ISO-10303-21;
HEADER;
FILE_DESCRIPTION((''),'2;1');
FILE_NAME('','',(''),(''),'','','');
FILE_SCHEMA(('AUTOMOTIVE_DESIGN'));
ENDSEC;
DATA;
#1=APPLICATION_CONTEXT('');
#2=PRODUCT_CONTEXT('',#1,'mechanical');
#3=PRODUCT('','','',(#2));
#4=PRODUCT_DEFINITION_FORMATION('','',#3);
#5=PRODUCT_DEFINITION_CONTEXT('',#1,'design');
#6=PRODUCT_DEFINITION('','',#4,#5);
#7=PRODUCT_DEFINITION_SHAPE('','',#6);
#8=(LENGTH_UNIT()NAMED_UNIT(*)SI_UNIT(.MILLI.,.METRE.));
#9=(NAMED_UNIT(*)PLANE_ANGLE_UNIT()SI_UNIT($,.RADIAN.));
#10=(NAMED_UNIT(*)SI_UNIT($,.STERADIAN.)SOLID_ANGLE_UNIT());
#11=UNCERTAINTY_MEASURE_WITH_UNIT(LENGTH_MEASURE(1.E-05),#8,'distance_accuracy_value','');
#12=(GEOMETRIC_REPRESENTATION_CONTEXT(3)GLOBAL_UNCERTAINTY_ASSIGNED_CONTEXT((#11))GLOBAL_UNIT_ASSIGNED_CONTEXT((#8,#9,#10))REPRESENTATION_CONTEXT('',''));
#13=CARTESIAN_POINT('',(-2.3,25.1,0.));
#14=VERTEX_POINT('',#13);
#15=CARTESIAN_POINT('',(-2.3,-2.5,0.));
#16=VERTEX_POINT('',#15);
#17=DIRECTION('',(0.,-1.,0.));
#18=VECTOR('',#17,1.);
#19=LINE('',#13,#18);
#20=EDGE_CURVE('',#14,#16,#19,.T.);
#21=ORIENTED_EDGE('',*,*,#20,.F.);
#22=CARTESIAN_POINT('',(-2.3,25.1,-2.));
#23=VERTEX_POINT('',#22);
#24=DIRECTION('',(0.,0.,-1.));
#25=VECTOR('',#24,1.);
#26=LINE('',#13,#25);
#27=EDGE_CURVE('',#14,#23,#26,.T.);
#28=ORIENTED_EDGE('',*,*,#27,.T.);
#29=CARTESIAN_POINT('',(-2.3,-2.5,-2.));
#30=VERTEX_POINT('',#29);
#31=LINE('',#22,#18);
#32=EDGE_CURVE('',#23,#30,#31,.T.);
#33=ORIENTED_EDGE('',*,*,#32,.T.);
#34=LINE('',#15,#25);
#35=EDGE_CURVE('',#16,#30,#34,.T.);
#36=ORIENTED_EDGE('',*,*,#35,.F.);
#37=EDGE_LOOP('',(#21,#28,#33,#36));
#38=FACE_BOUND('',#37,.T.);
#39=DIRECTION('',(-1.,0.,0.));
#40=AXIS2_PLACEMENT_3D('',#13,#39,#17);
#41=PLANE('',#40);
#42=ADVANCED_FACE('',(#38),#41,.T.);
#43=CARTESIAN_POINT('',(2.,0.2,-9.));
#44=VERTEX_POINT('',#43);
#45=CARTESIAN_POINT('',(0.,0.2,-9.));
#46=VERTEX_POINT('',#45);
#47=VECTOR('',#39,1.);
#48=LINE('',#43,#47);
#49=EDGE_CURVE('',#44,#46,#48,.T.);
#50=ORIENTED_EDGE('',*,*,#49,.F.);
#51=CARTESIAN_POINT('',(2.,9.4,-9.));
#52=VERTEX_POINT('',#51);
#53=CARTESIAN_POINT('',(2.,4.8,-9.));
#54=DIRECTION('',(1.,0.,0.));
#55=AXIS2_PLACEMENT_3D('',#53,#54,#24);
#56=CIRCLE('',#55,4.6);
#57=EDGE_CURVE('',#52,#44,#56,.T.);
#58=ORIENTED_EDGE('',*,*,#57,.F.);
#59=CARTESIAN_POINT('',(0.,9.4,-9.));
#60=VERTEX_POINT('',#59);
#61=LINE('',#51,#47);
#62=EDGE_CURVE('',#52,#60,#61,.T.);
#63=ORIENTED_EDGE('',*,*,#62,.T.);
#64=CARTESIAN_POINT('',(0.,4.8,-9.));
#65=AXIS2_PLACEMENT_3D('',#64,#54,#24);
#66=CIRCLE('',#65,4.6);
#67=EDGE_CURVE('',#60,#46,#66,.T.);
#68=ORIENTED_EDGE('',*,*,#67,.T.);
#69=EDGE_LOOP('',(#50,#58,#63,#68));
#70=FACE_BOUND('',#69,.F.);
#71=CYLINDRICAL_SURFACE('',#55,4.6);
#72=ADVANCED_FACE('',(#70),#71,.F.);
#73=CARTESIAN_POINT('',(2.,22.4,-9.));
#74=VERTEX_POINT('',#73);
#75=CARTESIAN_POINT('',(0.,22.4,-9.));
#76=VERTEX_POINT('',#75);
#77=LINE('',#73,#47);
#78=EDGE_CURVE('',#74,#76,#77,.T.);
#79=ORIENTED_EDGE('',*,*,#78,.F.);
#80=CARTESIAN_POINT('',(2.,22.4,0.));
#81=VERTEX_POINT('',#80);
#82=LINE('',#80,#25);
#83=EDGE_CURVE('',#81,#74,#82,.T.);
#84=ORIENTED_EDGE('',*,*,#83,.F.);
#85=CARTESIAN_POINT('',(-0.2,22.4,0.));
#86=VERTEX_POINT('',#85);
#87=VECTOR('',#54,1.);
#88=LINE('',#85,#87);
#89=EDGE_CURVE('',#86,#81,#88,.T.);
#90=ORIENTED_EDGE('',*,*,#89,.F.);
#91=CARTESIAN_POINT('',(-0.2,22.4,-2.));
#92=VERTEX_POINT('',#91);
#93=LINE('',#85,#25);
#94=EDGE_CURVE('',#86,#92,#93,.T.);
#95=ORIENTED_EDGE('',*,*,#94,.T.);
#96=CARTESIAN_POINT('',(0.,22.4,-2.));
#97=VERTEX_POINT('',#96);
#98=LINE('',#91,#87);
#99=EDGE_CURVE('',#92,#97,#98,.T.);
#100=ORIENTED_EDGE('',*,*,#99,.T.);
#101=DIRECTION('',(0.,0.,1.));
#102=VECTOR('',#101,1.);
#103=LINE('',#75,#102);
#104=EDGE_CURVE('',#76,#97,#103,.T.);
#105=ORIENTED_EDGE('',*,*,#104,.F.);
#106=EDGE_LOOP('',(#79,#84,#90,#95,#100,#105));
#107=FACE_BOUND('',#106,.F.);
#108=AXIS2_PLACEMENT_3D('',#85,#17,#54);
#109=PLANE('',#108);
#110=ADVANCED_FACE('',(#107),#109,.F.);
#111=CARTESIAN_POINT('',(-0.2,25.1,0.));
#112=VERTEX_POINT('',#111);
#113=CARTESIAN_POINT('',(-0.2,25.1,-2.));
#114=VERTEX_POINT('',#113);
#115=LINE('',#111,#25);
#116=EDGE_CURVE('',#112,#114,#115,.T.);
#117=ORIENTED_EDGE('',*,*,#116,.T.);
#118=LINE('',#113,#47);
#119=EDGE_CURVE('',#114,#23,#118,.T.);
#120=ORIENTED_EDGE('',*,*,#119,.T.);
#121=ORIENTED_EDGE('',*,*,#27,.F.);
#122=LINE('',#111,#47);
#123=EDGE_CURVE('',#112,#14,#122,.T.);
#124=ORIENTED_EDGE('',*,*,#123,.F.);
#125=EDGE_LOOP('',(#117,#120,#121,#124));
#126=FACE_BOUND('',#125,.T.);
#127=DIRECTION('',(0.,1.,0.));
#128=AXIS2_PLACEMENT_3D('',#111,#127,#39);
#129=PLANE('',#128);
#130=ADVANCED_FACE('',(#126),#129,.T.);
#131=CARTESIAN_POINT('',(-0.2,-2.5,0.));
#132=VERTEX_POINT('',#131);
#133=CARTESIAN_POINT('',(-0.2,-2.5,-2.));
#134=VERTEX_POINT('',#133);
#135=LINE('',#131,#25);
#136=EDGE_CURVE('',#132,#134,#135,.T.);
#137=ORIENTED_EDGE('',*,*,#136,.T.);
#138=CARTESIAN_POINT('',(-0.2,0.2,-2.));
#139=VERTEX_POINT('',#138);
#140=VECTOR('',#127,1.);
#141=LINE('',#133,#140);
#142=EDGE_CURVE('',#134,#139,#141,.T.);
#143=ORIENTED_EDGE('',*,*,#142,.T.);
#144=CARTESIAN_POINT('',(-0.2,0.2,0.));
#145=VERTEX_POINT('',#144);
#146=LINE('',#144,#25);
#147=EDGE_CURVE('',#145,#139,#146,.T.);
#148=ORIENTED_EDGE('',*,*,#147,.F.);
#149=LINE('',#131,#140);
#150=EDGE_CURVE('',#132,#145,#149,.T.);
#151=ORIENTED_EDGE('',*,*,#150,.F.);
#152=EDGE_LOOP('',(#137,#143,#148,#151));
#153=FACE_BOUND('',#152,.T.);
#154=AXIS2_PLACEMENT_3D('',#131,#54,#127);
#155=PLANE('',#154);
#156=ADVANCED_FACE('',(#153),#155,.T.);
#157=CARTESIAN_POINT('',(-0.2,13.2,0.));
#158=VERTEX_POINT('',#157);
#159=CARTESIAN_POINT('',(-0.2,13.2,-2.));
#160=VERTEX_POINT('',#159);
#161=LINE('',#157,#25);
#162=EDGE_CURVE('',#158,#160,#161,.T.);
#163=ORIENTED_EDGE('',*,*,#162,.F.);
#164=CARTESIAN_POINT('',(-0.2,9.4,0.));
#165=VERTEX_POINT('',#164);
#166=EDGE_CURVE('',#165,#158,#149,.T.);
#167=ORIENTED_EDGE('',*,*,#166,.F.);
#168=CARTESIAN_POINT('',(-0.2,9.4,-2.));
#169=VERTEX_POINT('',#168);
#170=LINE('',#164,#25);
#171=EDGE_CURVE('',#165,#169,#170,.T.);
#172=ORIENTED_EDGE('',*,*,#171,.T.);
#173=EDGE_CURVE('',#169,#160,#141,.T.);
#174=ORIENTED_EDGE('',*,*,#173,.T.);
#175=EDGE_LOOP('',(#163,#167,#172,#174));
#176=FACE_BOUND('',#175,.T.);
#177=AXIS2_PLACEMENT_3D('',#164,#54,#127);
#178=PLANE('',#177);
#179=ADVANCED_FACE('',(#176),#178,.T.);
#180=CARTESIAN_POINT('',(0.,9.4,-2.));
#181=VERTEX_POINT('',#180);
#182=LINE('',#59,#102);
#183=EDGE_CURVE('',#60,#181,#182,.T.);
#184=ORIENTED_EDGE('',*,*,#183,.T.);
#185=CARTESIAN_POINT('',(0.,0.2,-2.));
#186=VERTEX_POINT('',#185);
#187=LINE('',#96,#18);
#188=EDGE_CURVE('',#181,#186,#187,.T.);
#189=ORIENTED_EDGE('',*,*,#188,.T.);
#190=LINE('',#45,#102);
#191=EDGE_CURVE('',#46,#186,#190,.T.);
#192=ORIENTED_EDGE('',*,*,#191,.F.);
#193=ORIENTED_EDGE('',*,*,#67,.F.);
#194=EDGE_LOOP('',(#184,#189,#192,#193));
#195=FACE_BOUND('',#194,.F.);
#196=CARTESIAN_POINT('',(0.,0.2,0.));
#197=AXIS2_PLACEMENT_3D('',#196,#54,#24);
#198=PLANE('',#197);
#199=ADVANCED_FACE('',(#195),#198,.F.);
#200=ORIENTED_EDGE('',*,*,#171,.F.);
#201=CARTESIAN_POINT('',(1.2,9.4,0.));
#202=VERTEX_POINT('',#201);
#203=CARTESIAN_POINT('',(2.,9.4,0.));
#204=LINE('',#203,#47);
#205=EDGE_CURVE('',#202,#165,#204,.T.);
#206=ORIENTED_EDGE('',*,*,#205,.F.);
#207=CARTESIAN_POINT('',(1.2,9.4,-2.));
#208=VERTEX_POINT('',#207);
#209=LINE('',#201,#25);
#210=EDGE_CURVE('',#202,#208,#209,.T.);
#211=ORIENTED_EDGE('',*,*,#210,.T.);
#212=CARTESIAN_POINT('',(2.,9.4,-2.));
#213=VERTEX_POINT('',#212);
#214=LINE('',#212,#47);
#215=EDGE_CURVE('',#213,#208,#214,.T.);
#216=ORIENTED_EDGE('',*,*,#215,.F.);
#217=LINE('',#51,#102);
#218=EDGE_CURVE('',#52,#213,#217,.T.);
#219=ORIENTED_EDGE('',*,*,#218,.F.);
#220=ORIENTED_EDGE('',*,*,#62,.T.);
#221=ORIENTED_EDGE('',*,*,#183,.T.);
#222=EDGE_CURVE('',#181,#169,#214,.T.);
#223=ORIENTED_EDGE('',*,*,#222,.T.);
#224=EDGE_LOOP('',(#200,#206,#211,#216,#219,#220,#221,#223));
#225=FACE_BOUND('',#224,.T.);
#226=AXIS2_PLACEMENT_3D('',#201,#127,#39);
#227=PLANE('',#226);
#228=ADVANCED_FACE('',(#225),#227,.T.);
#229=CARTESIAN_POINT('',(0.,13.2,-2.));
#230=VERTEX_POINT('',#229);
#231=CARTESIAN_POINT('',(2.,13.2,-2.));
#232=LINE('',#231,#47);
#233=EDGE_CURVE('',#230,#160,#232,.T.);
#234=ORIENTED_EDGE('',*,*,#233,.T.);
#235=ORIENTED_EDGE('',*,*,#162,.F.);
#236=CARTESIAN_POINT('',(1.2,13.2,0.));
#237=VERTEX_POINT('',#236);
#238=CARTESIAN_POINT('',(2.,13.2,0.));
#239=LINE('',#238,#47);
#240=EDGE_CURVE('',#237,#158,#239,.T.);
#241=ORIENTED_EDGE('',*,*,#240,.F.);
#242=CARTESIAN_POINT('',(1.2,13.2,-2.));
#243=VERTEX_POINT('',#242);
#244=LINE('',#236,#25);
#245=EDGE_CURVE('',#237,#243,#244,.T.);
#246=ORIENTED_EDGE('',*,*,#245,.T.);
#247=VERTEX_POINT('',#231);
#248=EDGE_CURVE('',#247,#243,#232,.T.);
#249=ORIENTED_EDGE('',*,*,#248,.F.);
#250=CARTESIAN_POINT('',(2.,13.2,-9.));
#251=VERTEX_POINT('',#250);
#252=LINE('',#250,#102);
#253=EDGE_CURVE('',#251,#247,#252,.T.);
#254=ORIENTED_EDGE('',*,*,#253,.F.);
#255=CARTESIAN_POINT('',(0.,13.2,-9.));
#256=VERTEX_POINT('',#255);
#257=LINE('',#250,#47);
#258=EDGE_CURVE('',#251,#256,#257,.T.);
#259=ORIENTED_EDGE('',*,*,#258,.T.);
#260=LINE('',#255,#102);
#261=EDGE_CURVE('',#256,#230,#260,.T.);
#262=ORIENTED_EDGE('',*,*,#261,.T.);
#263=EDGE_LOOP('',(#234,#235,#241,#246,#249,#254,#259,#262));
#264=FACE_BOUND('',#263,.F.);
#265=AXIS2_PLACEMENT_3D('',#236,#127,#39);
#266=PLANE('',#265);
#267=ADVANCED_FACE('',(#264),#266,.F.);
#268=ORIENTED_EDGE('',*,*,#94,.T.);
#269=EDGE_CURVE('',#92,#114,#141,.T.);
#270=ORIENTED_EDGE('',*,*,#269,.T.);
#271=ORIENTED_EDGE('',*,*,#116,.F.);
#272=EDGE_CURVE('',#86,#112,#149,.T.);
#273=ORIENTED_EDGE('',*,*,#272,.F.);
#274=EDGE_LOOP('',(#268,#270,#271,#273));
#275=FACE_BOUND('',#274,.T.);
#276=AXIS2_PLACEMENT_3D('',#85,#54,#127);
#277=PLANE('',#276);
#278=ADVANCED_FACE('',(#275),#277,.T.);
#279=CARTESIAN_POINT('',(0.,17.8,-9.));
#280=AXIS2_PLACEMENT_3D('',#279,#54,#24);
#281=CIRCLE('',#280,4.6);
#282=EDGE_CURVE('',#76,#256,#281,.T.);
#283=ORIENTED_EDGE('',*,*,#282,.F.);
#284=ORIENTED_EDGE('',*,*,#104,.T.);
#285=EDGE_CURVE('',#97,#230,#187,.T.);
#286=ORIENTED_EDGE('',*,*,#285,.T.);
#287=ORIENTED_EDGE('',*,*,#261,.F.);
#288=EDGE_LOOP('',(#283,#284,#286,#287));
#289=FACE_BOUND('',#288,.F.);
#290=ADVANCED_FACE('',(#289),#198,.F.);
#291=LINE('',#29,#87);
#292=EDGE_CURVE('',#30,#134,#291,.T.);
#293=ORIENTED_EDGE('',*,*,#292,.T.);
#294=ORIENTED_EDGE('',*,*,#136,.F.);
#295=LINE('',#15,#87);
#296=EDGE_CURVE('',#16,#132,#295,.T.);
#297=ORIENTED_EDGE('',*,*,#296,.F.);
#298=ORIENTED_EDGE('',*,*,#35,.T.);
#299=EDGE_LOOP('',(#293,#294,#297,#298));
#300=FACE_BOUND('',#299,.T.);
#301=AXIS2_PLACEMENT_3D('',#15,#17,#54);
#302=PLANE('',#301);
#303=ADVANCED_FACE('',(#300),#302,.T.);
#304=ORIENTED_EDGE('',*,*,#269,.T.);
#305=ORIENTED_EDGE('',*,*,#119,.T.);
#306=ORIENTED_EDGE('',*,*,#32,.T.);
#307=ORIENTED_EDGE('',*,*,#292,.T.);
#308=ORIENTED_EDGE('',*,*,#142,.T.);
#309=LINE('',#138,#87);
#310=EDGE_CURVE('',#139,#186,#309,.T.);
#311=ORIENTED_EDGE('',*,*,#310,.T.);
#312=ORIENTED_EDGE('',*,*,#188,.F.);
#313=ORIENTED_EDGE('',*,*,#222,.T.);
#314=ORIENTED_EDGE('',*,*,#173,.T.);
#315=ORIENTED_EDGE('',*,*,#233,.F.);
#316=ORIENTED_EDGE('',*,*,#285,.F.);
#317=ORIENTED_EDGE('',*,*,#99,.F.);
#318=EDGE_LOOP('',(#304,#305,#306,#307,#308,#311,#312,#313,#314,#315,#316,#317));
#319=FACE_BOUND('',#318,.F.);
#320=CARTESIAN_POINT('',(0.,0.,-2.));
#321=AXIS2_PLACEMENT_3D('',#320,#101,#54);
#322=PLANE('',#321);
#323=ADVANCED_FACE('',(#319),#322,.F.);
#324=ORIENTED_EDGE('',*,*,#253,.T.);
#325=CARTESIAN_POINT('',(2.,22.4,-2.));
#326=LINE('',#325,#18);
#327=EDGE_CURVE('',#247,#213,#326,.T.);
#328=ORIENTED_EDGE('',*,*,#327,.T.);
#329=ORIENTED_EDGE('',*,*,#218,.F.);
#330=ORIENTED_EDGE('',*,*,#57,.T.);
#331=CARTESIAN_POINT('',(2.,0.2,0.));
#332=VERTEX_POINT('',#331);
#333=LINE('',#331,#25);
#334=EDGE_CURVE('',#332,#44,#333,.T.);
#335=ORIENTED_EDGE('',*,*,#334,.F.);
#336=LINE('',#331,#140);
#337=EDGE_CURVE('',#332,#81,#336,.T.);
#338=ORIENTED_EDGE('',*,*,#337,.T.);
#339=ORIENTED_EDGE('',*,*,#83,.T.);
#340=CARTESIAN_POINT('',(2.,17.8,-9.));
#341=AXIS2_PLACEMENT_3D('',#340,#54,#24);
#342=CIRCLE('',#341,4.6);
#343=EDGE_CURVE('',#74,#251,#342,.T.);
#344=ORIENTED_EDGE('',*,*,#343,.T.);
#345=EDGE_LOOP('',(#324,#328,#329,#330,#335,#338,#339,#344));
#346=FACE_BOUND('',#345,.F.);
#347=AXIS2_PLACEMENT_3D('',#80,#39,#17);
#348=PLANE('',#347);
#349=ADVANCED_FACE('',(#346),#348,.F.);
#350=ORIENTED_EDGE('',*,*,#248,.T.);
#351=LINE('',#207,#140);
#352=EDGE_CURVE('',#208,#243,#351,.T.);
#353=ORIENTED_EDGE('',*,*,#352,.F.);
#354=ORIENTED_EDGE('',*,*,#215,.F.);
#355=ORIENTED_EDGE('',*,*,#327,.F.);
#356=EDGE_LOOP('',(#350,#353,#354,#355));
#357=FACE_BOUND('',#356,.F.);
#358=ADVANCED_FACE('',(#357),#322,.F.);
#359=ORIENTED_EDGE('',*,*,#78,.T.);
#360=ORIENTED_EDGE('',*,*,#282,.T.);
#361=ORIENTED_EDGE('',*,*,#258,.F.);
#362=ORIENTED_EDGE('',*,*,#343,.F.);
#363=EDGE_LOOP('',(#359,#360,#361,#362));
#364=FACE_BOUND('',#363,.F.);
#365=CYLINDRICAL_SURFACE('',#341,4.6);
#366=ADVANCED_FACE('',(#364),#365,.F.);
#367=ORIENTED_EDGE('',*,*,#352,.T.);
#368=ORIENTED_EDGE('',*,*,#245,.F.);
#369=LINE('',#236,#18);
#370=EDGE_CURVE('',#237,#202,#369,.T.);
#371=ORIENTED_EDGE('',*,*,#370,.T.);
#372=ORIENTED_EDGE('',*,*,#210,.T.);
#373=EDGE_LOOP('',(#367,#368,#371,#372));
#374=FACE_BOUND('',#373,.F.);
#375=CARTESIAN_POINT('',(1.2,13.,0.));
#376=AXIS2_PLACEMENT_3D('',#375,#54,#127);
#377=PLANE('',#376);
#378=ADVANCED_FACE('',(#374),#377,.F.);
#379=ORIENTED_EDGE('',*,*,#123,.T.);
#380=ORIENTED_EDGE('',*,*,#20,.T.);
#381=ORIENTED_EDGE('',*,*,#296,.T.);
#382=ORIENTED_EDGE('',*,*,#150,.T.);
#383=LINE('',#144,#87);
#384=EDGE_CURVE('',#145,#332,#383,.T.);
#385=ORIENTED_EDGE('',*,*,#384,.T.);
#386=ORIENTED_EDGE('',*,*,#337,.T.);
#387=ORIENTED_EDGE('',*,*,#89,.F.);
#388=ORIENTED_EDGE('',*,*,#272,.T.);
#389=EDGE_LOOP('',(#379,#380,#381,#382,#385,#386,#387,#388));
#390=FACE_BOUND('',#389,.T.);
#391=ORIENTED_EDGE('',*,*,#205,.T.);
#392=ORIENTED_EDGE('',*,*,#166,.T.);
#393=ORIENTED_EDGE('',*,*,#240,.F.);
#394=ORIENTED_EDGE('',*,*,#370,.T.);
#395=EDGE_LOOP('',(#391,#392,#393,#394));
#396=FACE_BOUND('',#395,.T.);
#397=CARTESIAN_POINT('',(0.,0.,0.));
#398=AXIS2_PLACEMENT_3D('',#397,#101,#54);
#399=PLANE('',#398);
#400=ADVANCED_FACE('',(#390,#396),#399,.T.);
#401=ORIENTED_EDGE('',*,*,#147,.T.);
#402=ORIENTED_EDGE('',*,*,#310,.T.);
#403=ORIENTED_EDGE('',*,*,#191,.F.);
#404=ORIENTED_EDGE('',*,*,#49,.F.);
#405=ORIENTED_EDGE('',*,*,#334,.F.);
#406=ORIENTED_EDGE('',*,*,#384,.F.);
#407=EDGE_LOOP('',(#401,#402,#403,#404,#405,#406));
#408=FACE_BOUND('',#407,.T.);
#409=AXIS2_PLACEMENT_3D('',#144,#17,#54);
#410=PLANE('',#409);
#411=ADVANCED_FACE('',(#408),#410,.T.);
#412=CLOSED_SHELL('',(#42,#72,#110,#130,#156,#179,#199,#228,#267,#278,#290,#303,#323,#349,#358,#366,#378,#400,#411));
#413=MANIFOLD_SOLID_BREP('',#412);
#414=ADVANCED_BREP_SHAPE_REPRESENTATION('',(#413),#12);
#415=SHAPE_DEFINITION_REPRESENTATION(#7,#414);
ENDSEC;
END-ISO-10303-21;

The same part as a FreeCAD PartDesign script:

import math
import FreeCAD as App
import Part
import Sketcher


def add_polygon(sketch, points):
    """Adds a closed chain of lines whose ends are joined by coincident constraints."""
    first, n = sketch.GeometryCount, len(points)
    for a, b in zip(points, points[1:] + points[:1]):
        sketch.addGeometry(Part.LineSegment(App.Vector(*a, 0), App.Vector(*b, 0)), False)
    for i in range(n):
        sketch.addConstraint(Sketcher.Constraint("Coincident", first + i, 2, first + (i + 1) % n, 1))

doc = App.newDocument("Part")
body = doc.addObject("PartDesign::Body", "Body")

# Sketch on XY plane
sketch1 = body.newObject("Sketcher::SketchObject", "Sketch")
sketch1.AttachmentSupport = (doc.getObject("XY_Plane"), [""])
sketch1.MapMode = "FlatFace"
add_polygon(sketch1, [(-0.2, 22.4), (-0.2, 25.1), (-2.3, 25.1), (-2.3, -2.5), (-0.2, -2.5), (-0.2, 0.2), (2, 0.2), (2, 22.4)])  # lines 0-7
add_polygon(sketch1, [(-0.2, 9.4), (-0.2, 13.2), (1.2, 13.2), (1.2, 9.4)])  # lines 8-11
sketch1.addConstraint(Sketcher.Constraint("Vertical", 0))
sketch1.addConstraint(Sketcher.Constraint("Horizontal", 1))
sketch1.addConstraint(Sketcher.Constraint("Vertical", 2))
sketch1.addConstraint(Sketcher.Constraint("Horizontal", 3))
sketch1.addConstraint(Sketcher.Constraint("Vertical", 4))
sketch1.addConstraint(Sketcher.Constraint("Horizontal", 5))
sketch1.addConstraint(Sketcher.Constraint("Vertical", 6))
sketch1.addConstraint(Sketcher.Constraint("Horizontal", 7))
sketch1.addConstraint(Sketcher.Constraint("Vertical", 8))
sketch1.addConstraint(Sketcher.Constraint("Horizontal", 9))
sketch1.addConstraint(Sketcher.Constraint("Vertical", 10))
sketch1.addConstraint(Sketcher.Constraint("Horizontal", 11))
sketch1.addConstraint(Sketcher.Constraint("Vertical", 0, 2, 3, 2))
sketch1.addConstraint(Sketcher.Constraint("Vertical", 7, 2, 8, 2))
sketch1.addConstraint(Sketcher.Constraint("Equal", 0, 4))
sketch1.addConstraint(Sketcher.Constraint("DistanceX", 1, 2, 1, 1, 2.1))
sketch1.addConstraint(Sketcher.Constraint("DistanceY", 2, 2, 2, 1, 27.6))
sketch1.addConstraint(Sketcher.Constraint("DistanceX", 0, 2, -1, 1, 0.2))
sketch1.addConstraint(Sketcher.Constraint("DistanceY", -1, 1, 4, 2, 0.2))
sketch1.addConstraint(Sketcher.Constraint("DistanceY", 8, 2, 7, 2, 9.2))
sketch1.addConstraint(Sketcher.Constraint("DistanceY", 5, 2, 10, 2, 9.2))
sketch1.addConstraint(Sketcher.Constraint("DistanceX", 5, 1, 5, 2, 2.2))
sketch1.addConstraint(Sketcher.Constraint("DistanceX", 9, 1, 9, 2, 1.4))
sketch1.addConstraint(Sketcher.Constraint("DistanceY", 0, 1, 0, 2, 2.7))
pad1 = body.newObject("PartDesign::Pad", "Pad")
pad1.Profile = sketch1
pad1.Length = 2
pad1.Reversed = True

# Sketch on YZ plane
sketch2 = body.newObject("Sketcher::SketchObject", "Sketch001")
sketch2.AttachmentSupport = (doc.getObject("YZ_Plane"), [""])
sketch2.MapMode = "FlatFace"
sketch2.AttachmentOffset = App.Placement(App.Vector(0, 0, 2), App.Rotation())
sketch2.addGeometry(Part.LineSegment(App.Vector(22.4, -2, 0), App.Vector(13.2, -2, 0)), False)
sketch2.addGeometry(Part.LineSegment(App.Vector(13.2, -2, 0), App.Vector(13.2, -9, 0)), False)
sketch2.addGeometry(Part.ArcOfCircle(Part.Circle(App.Vector(17.8, -9, 0), App.Vector(0, 0, 1), 4.6), math.radians(0), math.radians(180)), False)
sketch2.addGeometry(Part.LineSegment(App.Vector(22.4, -9, 0), App.Vector(22.4, -2, 0)), False)
sketch2.addGeometry(Part.ArcOfCircle(Part.Circle(App.Vector(4.8, -9, 0), App.Vector(0, 0, 1), 4.6), math.radians(0), math.radians(180)), False)
sketch2.addGeometry(Part.LineSegment(App.Vector(9.4, -9, 0), App.Vector(9.4, -2, 0)), False)
sketch2.addGeometry(Part.LineSegment(App.Vector(9.4, -2, 0), App.Vector(0.2, -2, 0)), False)
sketch2.addGeometry(Part.LineSegment(App.Vector(0.2, -2, 0), App.Vector(0.2, -9, 0)), False)
sketch2.addConstraint(Sketcher.Constraint("Coincident", 0, 2, 1, 1))
sketch2.addConstraint(Sketcher.Constraint("Tangent", 1, 2, 2, 2))
sketch2.addConstraint(Sketcher.Constraint("Tangent", 2, 1, 3, 1))
sketch2.addConstraint(Sketcher.Constraint("Coincident", 3, 2, 0, 1))
sketch2.addConstraint(Sketcher.Constraint("Tangent", 4, 1, 5, 1))
sketch2.addConstraint(Sketcher.Constraint("Coincident", 5, 2, 6, 1))
sketch2.addConstraint(Sketcher.Constraint("Coincident", 6, 2, 7, 1))
sketch2.addConstraint(Sketcher.Constraint("Tangent", 7, 2, 4, 2))
sketch2.addConstraint(Sketcher.Constraint("Horizontal", 0))
sketch2.addConstraint(Sketcher.Constraint("Vertical", 1))
sketch2.addConstraint(Sketcher.Constraint("Vertical", 3))
sketch2.addConstraint(Sketcher.Constraint("Vertical", 5))
sketch2.addConstraint(Sketcher.Constraint("Horizontal", 6))
sketch2.addConstraint(Sketcher.Constraint("Vertical", 7))
sketch2.addConstraint(Sketcher.Constraint("Equal", 2, 4))
sketch2.addConstraint(Sketcher.Constraint("Horizontal", 2, 3, 4, 3))
sketch2.addConstraint(Sketcher.Constraint("Horizontal", 3, 2, 5, 2))
sketch2.addConstraint(Sketcher.Constraint("Radius", 2, 4.6))
sketch2.addConstraint(Sketcher.Constraint("DistanceY", 1, 2, 1, 1, 7.0))
sketch2.addConstraint(Sketcher.Constraint("DistanceY", 2, 3, -1, 1, 9.0))
sketch2.addConstraint(Sketcher.Constraint("DistanceX", 4, 3, 2, 3, 13.0))
sketch2.addConstraint(Sketcher.Constraint("DistanceX", -1, 1, 2, 3, 17.8))
pad2 = body.newObject("PartDesign::Pad", "Pad001")
pad2.Profile = sketch2
pad2.Length = 2
pad2.Reversed = True

doc.recompute()
